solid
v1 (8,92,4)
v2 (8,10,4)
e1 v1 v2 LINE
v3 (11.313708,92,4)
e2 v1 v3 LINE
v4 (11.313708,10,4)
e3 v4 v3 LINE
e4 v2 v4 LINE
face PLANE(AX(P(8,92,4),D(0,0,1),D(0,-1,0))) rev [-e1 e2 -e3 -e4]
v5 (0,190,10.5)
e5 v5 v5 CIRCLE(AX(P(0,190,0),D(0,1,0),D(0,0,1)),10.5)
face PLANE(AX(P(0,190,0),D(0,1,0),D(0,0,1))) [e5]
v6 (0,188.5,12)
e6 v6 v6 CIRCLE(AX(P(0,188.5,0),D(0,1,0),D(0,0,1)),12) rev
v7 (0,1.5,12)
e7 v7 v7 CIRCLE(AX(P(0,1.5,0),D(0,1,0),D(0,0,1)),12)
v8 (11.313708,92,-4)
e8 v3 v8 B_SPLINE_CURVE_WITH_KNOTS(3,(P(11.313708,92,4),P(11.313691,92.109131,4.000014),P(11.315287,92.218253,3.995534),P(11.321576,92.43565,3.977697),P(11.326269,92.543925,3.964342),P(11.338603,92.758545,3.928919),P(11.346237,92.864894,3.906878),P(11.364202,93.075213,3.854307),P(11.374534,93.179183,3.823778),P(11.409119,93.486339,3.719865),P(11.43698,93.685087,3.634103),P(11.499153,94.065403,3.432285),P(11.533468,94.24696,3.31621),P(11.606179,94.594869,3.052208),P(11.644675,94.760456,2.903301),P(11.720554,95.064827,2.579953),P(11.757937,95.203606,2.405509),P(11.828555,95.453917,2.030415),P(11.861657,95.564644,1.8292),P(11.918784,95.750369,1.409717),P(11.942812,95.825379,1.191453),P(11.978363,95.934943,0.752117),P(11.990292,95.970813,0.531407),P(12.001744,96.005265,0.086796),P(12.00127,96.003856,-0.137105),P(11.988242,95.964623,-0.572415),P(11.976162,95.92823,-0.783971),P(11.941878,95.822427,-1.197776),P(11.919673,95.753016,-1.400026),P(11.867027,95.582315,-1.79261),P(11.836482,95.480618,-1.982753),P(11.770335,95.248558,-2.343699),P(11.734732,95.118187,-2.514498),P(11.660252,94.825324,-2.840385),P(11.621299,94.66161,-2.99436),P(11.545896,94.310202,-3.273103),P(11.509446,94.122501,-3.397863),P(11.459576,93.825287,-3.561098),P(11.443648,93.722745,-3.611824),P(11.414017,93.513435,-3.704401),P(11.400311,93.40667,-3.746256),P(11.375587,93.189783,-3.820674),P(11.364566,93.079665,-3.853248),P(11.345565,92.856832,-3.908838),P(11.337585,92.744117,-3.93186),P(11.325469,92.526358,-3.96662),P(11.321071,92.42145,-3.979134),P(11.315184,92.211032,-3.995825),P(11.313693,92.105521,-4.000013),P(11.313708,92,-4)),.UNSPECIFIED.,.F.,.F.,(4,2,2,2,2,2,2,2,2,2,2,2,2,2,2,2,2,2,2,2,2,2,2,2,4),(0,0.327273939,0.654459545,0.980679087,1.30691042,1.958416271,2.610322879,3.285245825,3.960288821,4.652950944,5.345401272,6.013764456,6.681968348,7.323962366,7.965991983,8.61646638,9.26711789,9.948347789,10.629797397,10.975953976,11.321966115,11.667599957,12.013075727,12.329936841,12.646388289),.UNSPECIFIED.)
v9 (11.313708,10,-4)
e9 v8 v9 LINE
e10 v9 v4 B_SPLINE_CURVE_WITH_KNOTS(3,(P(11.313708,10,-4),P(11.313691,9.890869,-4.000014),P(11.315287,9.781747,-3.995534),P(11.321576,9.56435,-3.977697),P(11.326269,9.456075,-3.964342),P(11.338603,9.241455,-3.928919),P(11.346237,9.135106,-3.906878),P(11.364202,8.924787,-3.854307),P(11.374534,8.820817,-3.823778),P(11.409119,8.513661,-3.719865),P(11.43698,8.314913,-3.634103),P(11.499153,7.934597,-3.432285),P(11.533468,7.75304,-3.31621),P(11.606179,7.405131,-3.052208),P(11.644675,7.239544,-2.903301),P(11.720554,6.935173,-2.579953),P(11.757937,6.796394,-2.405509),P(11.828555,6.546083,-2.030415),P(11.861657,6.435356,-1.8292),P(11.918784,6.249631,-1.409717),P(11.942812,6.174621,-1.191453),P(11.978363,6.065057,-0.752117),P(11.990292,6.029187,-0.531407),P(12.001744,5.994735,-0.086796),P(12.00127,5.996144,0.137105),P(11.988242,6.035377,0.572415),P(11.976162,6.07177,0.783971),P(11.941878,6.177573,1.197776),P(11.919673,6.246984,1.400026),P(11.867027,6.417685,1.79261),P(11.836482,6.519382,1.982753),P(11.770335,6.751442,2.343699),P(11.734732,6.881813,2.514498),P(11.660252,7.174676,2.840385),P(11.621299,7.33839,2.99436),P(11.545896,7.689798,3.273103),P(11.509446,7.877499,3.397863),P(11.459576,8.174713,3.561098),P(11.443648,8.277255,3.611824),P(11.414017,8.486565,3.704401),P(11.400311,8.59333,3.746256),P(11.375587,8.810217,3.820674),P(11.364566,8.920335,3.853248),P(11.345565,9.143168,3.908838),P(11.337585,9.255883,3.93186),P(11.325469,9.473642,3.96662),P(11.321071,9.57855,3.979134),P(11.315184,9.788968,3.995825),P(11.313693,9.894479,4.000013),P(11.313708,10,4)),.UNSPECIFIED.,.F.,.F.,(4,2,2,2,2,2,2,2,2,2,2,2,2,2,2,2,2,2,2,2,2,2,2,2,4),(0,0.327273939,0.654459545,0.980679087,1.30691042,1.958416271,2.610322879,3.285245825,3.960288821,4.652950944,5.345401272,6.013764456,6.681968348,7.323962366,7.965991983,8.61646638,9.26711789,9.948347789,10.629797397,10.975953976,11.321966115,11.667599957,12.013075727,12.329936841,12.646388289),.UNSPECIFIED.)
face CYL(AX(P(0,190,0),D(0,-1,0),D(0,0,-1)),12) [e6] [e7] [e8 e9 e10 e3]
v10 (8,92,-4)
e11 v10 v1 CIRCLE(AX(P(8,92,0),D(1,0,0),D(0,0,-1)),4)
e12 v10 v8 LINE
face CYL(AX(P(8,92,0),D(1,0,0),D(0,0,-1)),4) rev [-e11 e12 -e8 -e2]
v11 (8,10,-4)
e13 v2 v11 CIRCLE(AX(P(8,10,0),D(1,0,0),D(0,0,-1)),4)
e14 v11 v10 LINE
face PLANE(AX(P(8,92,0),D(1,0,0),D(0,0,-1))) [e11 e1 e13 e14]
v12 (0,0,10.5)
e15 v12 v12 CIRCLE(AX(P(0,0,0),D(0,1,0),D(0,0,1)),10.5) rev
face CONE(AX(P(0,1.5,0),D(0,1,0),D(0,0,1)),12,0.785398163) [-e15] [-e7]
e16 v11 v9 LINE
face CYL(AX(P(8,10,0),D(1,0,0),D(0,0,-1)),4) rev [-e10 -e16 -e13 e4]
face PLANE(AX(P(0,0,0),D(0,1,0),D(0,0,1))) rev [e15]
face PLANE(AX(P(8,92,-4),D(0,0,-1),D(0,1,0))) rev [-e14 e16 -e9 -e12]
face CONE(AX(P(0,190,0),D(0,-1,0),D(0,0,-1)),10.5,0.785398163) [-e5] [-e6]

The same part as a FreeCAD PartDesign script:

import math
import FreeCAD as App
import Part
import Sketcher
Q = App.Units.Quantity


def edges_at(feature, points):
    """Names of the edges that pass closest to the given points."""
    edges = feature.Shape.Edges
    near = lambda p: min(range(len(edges)), key=lambda i: edges[i].distToShape(Part.Vertex(*p))[0])
    return sorted({f"Edge{near(p) + 1}" for p in points})

doc = App.newDocument("Part")
body = doc.addObject("PartDesign::Body", "Body")

# Sketch on XZ plane
sketch1 = body.newObject("Sketcher::SketchObject", "Sketch")
sketch1.AttachmentSupport = (doc.getObject("XZ_Plane"), [""])
sketch1.MapMode = "FlatFace"
sketch1.addGeometry(Part.Circle(App.Vector(0, 0, 0), App.Vector(0, 0, 1), 12), False)
sketch1.addConstraint([
    Sketcher.Constraint("Coincident", 0, 3, -1, 1),
    Sketcher.Constraint("Diameter", 0, Q("24 mm")),
])
pad1 = body.newObject("PartDesign::Pad", "Pad")
pad1.Profile = sketch1
pad1.Length = 190
pad1.Reversed = True

# Sketch on YZ plane
sketch2 = body.newObject("Sketcher::SketchObject", "Sketch001")
sketch2.AttachmentSupport = (doc.getObject("YZ_Plane"), [""])
sketch2.MapMode = "FlatFace"
sketch2.AttachmentOffset = App.Placement(App.Vector(0, 0, 12), App.Rotation())
sketch2.addGeometry([
    Part.LineSegment(App.Vector(10, -4, 0), App.Vector(92, -4, 0)),
    Part.ArcOfCircle(Part.Circle(App.Vector(92, 0, 0), App.Vector(0, 0, 1), 4), math.radians(-90), math.radians(90)),
    Part.LineSegment(App.Vector(92, 4, 0), App.Vector(10, 4, 0)),
    Part.ArcOfCircle(Part.Circle(App.Vector(10, 0, 0), App.Vector(0, 0, 1), 4), math.radians(90), math.radians(270)),
], False)
sketch2.addConstraint([
    Sketcher.Constraint("Tangent", 0, 2, 1, 1),
    Sketcher.Constraint("Tangent", 1, 2, 2, 1),
    Sketcher.Constraint("Tangent", 2, 2, 3, 1),
    Sketcher.Constraint("Tangent", 3, 2, 0, 1),
    Sketcher.Constraint("Horizontal", 0),
    Sketcher.Constraint("Horizontal", 2),
    Sketcher.Constraint("PointOnObject", 1, 3, -1),
    Sketcher.Constraint("Radius", 1, Q("4 mm")),
    Sketcher.Constraint("DistanceX", 0, 1, 0, 2, Q("82 mm")),
    Sketcher.Constraint("DistanceX", -1, 1, 1, 3, Q("92 mm")),
])
pocket1 = body.newObject("PartDesign::Pocket", "Pocket")
pocket1.Profile = sketch2
pocket1.Length = 4
doc.recompute()

chamfer = body.newObject("PartDesign::Chamfer", "Chamfer")
chamfer.Base = (pocket1, edges_at(pocket1, [(-12, 0, 0), (-12, 190, 0)]))
chamfer.Size = 1.5

doc.recompute()
